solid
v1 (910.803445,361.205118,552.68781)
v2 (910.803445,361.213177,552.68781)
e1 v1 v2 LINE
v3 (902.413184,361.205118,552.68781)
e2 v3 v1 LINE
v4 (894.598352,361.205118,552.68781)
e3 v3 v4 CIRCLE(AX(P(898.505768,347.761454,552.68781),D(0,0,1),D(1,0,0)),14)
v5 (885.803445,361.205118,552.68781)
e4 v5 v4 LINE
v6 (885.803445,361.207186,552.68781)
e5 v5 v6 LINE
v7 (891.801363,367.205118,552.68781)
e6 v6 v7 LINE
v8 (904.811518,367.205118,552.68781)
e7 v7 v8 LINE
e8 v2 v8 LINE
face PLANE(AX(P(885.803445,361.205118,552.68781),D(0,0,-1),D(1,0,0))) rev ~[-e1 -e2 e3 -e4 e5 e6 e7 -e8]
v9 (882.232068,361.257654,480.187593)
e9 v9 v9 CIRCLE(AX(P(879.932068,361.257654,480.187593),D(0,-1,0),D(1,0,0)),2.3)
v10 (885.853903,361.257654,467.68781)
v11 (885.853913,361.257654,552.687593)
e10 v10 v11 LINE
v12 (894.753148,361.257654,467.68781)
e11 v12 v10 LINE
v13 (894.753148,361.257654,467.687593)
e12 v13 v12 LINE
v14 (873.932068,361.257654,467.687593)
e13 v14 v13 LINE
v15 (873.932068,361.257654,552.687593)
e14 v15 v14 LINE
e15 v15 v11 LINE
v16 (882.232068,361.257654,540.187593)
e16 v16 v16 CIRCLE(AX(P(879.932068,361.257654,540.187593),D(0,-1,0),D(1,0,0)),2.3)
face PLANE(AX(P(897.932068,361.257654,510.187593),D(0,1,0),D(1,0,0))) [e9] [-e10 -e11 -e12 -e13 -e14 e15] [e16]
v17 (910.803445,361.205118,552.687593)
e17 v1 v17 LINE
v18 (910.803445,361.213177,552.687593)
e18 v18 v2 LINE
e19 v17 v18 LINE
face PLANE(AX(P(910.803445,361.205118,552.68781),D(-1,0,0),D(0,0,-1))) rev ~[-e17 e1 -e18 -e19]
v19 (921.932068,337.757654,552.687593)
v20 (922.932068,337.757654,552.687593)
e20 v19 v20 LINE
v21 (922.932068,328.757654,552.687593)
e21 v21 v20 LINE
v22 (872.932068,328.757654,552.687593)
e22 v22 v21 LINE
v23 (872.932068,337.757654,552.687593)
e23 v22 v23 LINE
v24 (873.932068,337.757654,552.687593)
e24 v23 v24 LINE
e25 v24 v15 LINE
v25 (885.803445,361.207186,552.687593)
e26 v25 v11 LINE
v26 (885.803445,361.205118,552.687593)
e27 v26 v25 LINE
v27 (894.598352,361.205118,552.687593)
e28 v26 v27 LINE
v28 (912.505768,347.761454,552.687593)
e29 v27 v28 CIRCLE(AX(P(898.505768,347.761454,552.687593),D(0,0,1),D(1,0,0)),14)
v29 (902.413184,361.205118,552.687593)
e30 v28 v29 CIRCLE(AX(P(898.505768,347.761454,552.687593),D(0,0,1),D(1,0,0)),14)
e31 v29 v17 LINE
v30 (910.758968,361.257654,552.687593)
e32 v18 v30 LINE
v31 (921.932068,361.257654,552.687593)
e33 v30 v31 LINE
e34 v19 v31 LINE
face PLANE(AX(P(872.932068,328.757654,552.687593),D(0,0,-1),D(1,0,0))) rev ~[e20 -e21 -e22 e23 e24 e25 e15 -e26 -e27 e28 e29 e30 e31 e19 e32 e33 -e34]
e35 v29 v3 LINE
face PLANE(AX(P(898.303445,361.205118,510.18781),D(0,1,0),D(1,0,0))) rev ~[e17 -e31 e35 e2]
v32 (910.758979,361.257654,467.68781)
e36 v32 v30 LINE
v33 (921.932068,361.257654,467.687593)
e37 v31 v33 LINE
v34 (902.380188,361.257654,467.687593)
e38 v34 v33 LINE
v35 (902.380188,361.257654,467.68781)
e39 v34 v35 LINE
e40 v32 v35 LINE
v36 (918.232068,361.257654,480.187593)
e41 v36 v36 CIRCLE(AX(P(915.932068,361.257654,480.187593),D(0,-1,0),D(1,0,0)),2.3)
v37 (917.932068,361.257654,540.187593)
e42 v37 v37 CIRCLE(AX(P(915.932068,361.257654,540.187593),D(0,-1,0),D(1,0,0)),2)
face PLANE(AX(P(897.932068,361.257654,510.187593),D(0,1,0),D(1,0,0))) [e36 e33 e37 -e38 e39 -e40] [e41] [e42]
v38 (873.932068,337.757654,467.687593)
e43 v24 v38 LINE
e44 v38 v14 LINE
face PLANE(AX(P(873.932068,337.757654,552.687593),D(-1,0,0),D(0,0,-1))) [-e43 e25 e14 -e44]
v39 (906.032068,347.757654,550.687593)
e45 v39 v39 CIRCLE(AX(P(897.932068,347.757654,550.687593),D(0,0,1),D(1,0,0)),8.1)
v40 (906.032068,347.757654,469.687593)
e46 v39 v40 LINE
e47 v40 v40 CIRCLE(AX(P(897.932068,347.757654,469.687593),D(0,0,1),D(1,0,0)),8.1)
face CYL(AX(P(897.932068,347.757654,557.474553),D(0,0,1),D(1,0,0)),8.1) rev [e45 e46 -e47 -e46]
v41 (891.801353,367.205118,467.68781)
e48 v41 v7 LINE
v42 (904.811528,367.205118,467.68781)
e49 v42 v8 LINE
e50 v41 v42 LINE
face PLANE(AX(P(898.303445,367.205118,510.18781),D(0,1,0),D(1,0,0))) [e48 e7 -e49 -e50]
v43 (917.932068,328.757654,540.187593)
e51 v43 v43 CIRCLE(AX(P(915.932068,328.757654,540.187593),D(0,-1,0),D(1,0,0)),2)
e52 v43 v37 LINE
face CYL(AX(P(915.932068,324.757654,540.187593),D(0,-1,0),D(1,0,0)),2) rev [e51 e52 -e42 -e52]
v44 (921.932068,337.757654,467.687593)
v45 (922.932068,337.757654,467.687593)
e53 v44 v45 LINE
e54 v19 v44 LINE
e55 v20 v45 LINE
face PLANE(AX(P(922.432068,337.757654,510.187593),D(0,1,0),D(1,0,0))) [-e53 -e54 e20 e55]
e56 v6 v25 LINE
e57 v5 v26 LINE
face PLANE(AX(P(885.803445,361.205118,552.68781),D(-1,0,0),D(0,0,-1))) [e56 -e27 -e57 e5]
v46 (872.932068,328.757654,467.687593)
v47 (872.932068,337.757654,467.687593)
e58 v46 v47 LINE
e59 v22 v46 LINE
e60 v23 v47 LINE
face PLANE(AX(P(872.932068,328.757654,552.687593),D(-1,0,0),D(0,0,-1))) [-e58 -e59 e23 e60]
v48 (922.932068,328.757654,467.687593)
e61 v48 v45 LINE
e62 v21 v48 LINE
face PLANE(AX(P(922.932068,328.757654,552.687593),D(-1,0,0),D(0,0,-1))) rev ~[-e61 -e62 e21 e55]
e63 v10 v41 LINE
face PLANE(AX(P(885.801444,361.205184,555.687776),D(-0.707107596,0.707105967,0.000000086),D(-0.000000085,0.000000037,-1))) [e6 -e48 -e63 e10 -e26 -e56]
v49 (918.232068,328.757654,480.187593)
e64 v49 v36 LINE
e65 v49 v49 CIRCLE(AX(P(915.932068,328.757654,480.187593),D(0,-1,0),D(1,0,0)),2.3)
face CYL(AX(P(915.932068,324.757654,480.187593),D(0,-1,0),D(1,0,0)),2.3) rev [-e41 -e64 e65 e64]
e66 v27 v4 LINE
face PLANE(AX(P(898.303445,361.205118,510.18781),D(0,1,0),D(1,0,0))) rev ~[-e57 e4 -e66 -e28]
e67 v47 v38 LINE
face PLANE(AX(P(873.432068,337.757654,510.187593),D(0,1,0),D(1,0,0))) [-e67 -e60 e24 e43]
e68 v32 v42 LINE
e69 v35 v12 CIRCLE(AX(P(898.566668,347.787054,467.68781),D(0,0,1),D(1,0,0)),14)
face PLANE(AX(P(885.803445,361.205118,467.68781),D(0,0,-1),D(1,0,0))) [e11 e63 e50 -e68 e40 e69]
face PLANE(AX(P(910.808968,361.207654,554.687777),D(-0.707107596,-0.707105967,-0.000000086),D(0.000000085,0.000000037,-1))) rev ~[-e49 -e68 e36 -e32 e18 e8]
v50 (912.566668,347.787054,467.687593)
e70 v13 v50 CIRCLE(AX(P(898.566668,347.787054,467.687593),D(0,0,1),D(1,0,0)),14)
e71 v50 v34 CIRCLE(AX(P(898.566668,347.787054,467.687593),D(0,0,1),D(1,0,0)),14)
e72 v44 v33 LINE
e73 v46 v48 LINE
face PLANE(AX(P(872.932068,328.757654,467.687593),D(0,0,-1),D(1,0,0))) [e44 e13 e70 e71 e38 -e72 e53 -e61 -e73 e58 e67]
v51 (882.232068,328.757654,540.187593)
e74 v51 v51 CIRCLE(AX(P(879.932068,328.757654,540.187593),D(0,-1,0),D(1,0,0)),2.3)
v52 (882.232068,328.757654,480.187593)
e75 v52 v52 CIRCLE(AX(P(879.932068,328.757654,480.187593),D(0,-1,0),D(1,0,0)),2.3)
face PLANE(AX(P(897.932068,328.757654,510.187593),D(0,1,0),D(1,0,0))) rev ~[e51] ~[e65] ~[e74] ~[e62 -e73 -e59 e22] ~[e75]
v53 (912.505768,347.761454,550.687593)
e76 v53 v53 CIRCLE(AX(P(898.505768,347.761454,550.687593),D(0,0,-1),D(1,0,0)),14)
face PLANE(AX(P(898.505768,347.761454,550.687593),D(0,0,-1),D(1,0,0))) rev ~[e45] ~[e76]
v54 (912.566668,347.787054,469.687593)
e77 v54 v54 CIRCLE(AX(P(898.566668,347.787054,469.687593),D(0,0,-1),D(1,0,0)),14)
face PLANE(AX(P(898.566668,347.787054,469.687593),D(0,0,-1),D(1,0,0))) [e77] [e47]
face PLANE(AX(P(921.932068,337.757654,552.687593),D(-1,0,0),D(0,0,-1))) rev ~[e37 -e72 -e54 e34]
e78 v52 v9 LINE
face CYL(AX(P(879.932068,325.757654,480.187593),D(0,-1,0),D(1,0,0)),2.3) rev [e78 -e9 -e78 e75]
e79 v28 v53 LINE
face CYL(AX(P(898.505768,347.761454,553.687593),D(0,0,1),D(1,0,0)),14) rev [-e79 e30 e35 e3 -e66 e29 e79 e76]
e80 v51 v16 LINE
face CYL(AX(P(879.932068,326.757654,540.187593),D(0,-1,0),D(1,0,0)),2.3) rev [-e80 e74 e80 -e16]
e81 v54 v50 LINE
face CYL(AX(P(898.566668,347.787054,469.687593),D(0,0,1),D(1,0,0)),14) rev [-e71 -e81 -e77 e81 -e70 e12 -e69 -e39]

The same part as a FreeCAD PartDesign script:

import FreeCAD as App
import Part
import Sketcher

V = App.Vector


def add_polygon(sketch, points):
    """Adds a closed chain of lines whose ends are joined by coincident constraints."""
    first, n = sketch.GeometryCount, len(points)
    for a, b in zip(points, points[1:] + points[:1]):
        sketch.addGeometry(Part.LineSegment(App.Vector(*a, 0), App.Vector(*b, 0)), False)
    for i in range(n):
        sketch.addConstraint(Sketcher.Constraint("Coincident", first + i, 2, first + (i + 1) % n, 1))

doc = App.newDocument("Part")
params = doc.addObject("Spreadsheet::Sheet", "Params")
for row, (alias, value) in enumerate([
    ("sketch1_diameter", "28 mm"),
    ("pad1_length", "3 mm"),
    ("sketch2_diameter", "28 mm"),
    ("pad2_length", "3 mm"),
    ("sketch3_diameter", "4.6 mm"),
    ("pad3_length", "40 mm"),
    ("sketch4_diameter", "4 mm"),
    ("pad4_length", "40 mm"),
    ("sketch5_diameter", "4.6 mm"),
    ("pad5_length", "40 mm"),
    ("sketch6_diameter", "4.6 mm"),
    ("pad6_length", "40 mm"),
    ("sketch7_width", "1 mm"),
    ("sketch7_height", "85 mm"),
    ("pad7_length", "23.5 mm"),
    ("sketch8_width", "1 mm"),
    ("sketch8_height", "85 mm"),
    ("pad8_length", "23.5 mm"),
    ("sketch9_width", "10 mm"),
    ("sketch9_height", "90 mm"),
    ("pad9_length", "10 mm"),
    ("sketch10_width", "10 mm"),
    ("sketch10_height", "90 mm"),
    ("pad10_length", "10 mm"),
    ("sketch11_width", "25 mm"),
    ("sketch11_height", "85 mm"),
    ("pad11_length", "6 mm"),
    ("sketch12_diameter", "16.2 mm"),
    ("pad12_length", "100 mm"),
    ("sketch13_width", "50 mm"),
    ("sketch13_height", "85 mm"),
    ("pad13_length", "32.5 mm"),
], start=1):
    params.set(f"A{row}", alias)
    params.set(f"B{row}", "=" + value)
    params.setAlias(f"B{row}", alias)

body = doc.addObject("PartDesign::Body", "Body")

sketch1 = body.newObject("Sketcher::SketchObject", "Sketch")
sketch1.AttachmentSupport = (doc.getObject("XY_Plane"), [""])
sketch1.MapMode = "FlatFace"
sketch1.addGeometry(Part.Circle(V(0, 0, 0), V(0, 0, 1), 14), False)
sketch1.addConstraint([
    Sketcher.Constraint("Coincident", 0, 3, -1, 1),
    Sketcher.Constraint("Diameter", 0, 28.0),
])
sketch1.setExpression("Constraints[1]", "Params.sketch1_diameter")
pad1 = body.newObject("PartDesign::Pad", "Pad")
pad1.Profile = sketch1
pad1.setExpression("Length", "Params.pad1_length")
body2 = doc.addObject("PartDesign::Body", "Body001")
doc.recompute()

body.Placement = App.Placement(V(0, 0, 0), App.Rotation(V(1, 0, 0), 270))
boolean = body2.newObject("PartDesign::Boolean", "Boolean")
boolean.Type = "Fuse"
boolean.addObjects([body])
body3 = doc.addObject("PartDesign::Body", "Body002")
doc.recompute()

body2.Placement = App.Placement(V(25.6346, 83, 19.0294), App.Rotation(V(0, 0, 1), 0))
boolean2 = body3.newObject("PartDesign::Boolean", "Boolean001")
boolean2.Type = "Fuse"
boolean2.addObjects([body2])
body4 = doc.addObject("PartDesign::Body", "Body003")

sketch2 = body4.newObject("Sketcher::SketchObject", "Sketch001")
sketch2.AttachmentSupport = (doc.getObject("XY_Plane003"), [""])
sketch2.MapMode = "FlatFace"
sketch2.addGeometry(Part.Circle(V(0, 0, 0), V(0, 0, 1), 14), False)
sketch2.addConstraint([
    Sketcher.Constraint("Coincident", 0, 3, -1, 1),
    Sketcher.Constraint("Diameter", 0, 28.0),
])
sketch2.setExpression("Constraints[1]", "Params.sketch2_diameter")
pad2 = body4.newObject("PartDesign::Pad", "Pad001")
pad2.Profile = sketch2
pad2.setExpression("Length", "Params.pad2_length")
body5 = doc.addObject("PartDesign::Body", "Body004")
doc.recompute()

body4.Placement = App.Placement(V(0, 0, 0), App.Rotation(V(1, 0, 0), 270))
boolean3 = body5.newObject("PartDesign::Boolean", "Boolean002")
boolean3.Type = "Fuse"
boolean3.addObjects([body4])
body6 = doc.addObject("PartDesign::Body", "Body005")
doc.recompute()

body5.Placement = App.Placement(V(25.5737, -1, 19.0038), App.Rotation(V(0, 0, 1), 0))
boolean4 = body6.newObject("PartDesign::Boolean", "Boolean003")
boolean4.Type = "Fuse"
boolean4.addObjects([body5])
body7 = doc.addObject("PartDesign::Body", "Body006")

sketch3 = body7.newObject("Sketcher::SketchObject", "Sketch002")
sketch3.AttachmentSupport = (doc.getObject("XY_Plane006"), [""])
sketch3.MapMode = "FlatFace"
sketch3.AttachmentOffset = App.Placement(V(0, 0, -4), App.Rotation())
sketch3.addGeometry(Part.Circle(V(43, 72.5, 0), V(0, 0, 1), 2.3), False)
sketch3.addConstraint([
    Sketcher.Constraint("Diameter", 0, 4.6),
    Sketcher.Constraint("DistanceX", -1, 1, 0, 3, 43.0),
    Sketcher.Constraint("DistanceY", -1, 1, 0, 3, 72.5),
])
sketch3.setExpression("Constraints[0]", "Params.sketch3_diameter")
pad3 = body7.newObject("PartDesign::Pad", "Pad002")
pad3.Profile = sketch3
pad3.setExpression("Length", "Params.pad3_length")
body8 = doc.addObject("PartDesign::Body", "Body007")

sketch4 = body8.newObject("Sketcher::SketchObject", "Sketch003")
sketch4.AttachmentSupport = (doc.getObject("XY_Plane007"), [""])
sketch4.MapMode = "FlatFace"
sketch4.AttachmentOffset = App.Placement(V(0, 0, -4), App.Rotation())
sketch4.addGeometry(Part.Circle(V(43, 12.5, 0), V(0, 0, 1), 2), False)
sketch4.addConstraint([
    Sketcher.Constraint("Diameter", 0, 4.0),
    Sketcher.Constraint("DistanceX", -1, 1, 0, 3, 43.0),
    Sketcher.Constraint("DistanceY", -1, 1, 0, 3, 12.5),
])
sketch4.setExpression("Constraints[0]", "Params.sketch4_diameter")
pad4 = body8.newObject("PartDesign::Pad", "Pad003")
pad4.Profile = sketch4
pad4.setExpression("Length", "Params.pad4_length")
body9 = doc.addObject("PartDesign::Body", "Body008")

sketch5 = body9.newObject("Sketcher::SketchObject", "Sketch004")
sketch5.AttachmentSupport = (doc.getObject("XY_Plane008"), [""])
sketch5.MapMode = "FlatFace"
sketch5.AttachmentOffset = App.Placement(V(0, 0, -3), App.Rotation())
sketch5.addGeometry(Part.Circle(V(7, 72.5, 0), V(0, 0, 1), 2.3), False)
sketch5.addConstraint([
    Sketcher.Constraint("Diameter", 0, 4.6),
    Sketcher.Constraint("DistanceX", -1, 1, 0, 3, 7.0),
    Sketcher.Constraint("DistanceY", -1, 1, 0, 3, 72.5),
])
sketch5.setExpression("Constraints[0]", "Params.sketch5_diameter")
pad5 = body9.newObject("PartDesign::Pad", "Pad004")
pad5.Profile = sketch5
pad5.setExpression("Length", "Params.pad5_length")
body10 = doc.addObject("PartDesign::Body", "Body009")

sketch6 = body10.newObject("Sketcher::SketchObject", "Sketch005")
sketch6.AttachmentSupport = (doc.getObject("XY_Plane009"), [""])
sketch6.MapMode = "FlatFace"
sketch6.AttachmentOffset = App.Placement(V(0, 0, -2), App.Rotation())
sketch6.addGeometry(Part.Circle(V(7, 12.5, 0), V(0, 0, 1), 2.3), False)
sketch6.addConstraint([
    Sketcher.Constraint("Diameter", 0, 4.6),
    Sketcher.Constraint("DistanceX", -1, 1, 0, 3, 7.0),
    Sketcher.Constraint("DistanceY", -1, 1, 0, 3, 12.5),
])
sketch6.setExpression("Constraints[0]", "Params.sketch6_diameter")
pad6 = body10.newObject("PartDesign::Pad", "Pad005")
pad6.Profile = sketch6
pad6.setExpression("Length", "Params.pad6_length")
body11 = doc.addObject("PartDesign::Body", "Body010")

sketch7 = body11.newObject("Sketcher::SketchObject", "Sketch006")
sketch7.AttachmentSupport = (doc.getObject("XY_Plane010"), [""])
sketch7.MapMode = "FlatFace"
sketch7.AttachmentOffset = App.Placement(V(0, 0, 9), App.Rotation())
add_polygon(sketch7, [(49, 85), (49, 0), (50, 0), (50, 85)])
sketch7.addConstraint([
    Sketcher.Constraint("Vertical", 0),
    Sketcher.Constraint("Horizontal", 1),
    Sketcher.Constraint("Vertical", 2),
    Sketcher.Constraint("Horizontal", 3),
    Sketcher.Constraint("PointOnObject", 0, 2, -1),
    Sketcher.Constraint("DistanceX", 1, 1, 1, 2, 1.0),
    Sketcher.Constraint("DistanceY", 0, 2, 0, 1, 85.0),
    Sketcher.Constraint("DistanceX", -1, 1, 0, 2, 49.0),
])
sketch7.setExpression("Constraints[9]", "Params.sketch7_width")
sketch7.setExpression("Constraints[10]", "Params.sketch7_height")
pad7 = body11.newObject("PartDesign::Pad", "Pad006")
pad7.Profile = sketch7
pad7.setExpression("Length", "Params.pad7_length")
body12 = doc.addObject("PartDesign::Body", "Body011")

sketch8 = body12.newObject("Sketcher::SketchObject", "Sketch007")
sketch8.AttachmentSupport = (doc.getObject("XY_Plane011"), [""])
sketch8.MapMode = "FlatFace"
sketch8.AttachmentOffset = App.Placement(V(0, 0, 9), App.Rotation())
add_polygon(sketch8, [(0, 85), (0, 0), (1, 0), (1, 85)])
sketch8.addConstraint([
    Sketcher.Constraint("Vertical", 0),
    Sketcher.Constraint("Horizontal", 1),
    Sketcher.Constraint("Vertical", 2),
    Sketcher.Constraint("Horizontal", 3),
    Sketcher.Constraint("Coincident", 0, 2, -1, 1),
    Sketcher.Constraint("DistanceX", 1, 1, 1, 2, 1.0),
    Sketcher.Constraint("DistanceY", 0, 2, 0, 1, 85.0),
])
sketch8.setExpression("Constraints[9]", "Params.sketch8_width")
sketch8.setExpression("Constraints[10]", "Params.sketch8_height")
pad8 = body12.newObject("PartDesign::Pad", "Pad007")
pad8.Profile = sketch8
pad8.setExpression("Length", "Params.pad8_length")
body13 = doc.addObject("PartDesign::Body", "Body012")

sketch9 = body13.newObject("Sketcher::SketchObject", "Sketch008")
sketch9.AttachmentSupport = (doc.getObject("XY_Plane012"), [""])
sketch9.MapMode = "FlatFace"
add_polygon(sketch9, [(0, 90), (0, 0), (10, 0), (10, 90)])
sketch9.addConstraint([
    Sketcher.Constraint("Vertical", 0),
    Sketcher.Constraint("Horizontal", 1),
    Sketcher.Constraint("Vertical", 2),
    Sketcher.Constraint("Horizontal", 3),
    Sketcher.Constraint("Coincident", 0, 2, -1, 1),
    Sketcher.Constraint("DistanceX", 1, 1, 1, 2, 10.0),
    Sketcher.Constraint("DistanceY", 0, 2, 0, 1, 90.0),
])
sketch9.setExpression("Constraints[9]", "Params.sketch9_width")
sketch9.setExpression("Constraints[10]", "Params.sketch9_height")
pad9 = body13.newObject("PartDesign::Pad", "Pad008")
pad9.Profile = sketch9
pad9.setExpression("Length", "Params.pad9_length")
body14 = doc.addObject("PartDesign::Body", "Body013")
doc.recompute()

body13.Placement = App.Placement(V(0, 0, 0), App.Rotation(V(1, 0, 0), 0.000003))
boolean5 = body14.newObject("PartDesign::Boolean", "Boolean004")
boolean5.Type = "Fuse"
boolean5.addObjects([body13])
body15 = doc.addObject("PartDesign::Body", "Body014")
doc.recompute()

body14.Placement = App.Placement(V(0, 0, 0), App.Rotation(V(0, 1, 0), 315.000066))
boolean6 = body15.newObject("PartDesign::Boolean", "Boolean005")
boolean6.Type = "Fuse"
boolean6.addObjects([body14])
body16 = doc.addObject("PartDesign::Body", "Body015")
doc.recompute()

body15.Placement = App.Placement(V(-18.82, -2, 2.25), App.Rotation(V(0, 0, 1), 359.999993))
boolean7 = body16.newObject("PartDesign::Boolean", "Boolean006")
boolean7.Type = "Fuse"
boolean7.addObjects([body15])
body17 = doc.addObject("PartDesign::Body", "Body016")

sketch10 = body17.newObject("Sketcher::SketchObject", "Sketch009")
sketch10.AttachmentSupport = (doc.getObject("XY_Plane016"), [""])
sketch10.MapMode = "FlatFace"
add_polygon(sketch10, [(0, 90), (0, 0), (10, 0), (10, 90)])
sketch10.addConstraint([
    Sketcher.Constraint("Vertical", 0),
    Sketcher.Constraint("Horizontal", 1),
    Sketcher.Constraint("Vertical", 2),
    Sketcher.Constraint("Horizontal", 3),
    Sketcher.Constraint("Coincident", 0, 2, -1, 1),
    Sketcher.Constraint("DistanceX", 1, 1, 1, 2, 10.0),
    Sketcher.Constraint("DistanceY", 0, 2, 0, 1, 90.0),
])
sketch10.setExpression("Constraints[9]", "Params.sketch10_width")
sketch10.setExpression("Constraints[10]", "Params.sketch10_height")
pad10 = body17.newObject("PartDesign::Pad", "Pad009")
pad10.Profile = sketch10
pad10.setExpression("Length", "Params.pad10_length")
body18 = doc.addObject("PartDesign::Body", "Body017")
doc.recompute()

body17.Placement = App.Placement(V(0, 0, 0), App.Rotation(V(1, 0, 0), 0.000003))
boolean8 = body18.newObject("PartDesign::Boolean", "Boolean007")
boolean8.Type = "Fuse"
boolean8.addObjects([body17])
body19 = doc.addObject("PartDesign::Body", "Body018")
doc.recompute()

body18.Placement = App.Placement(V(0, 0, 0), App.Rotation(V(0, 1, 0), 44.999934))
boolean9 = body19.newObject("PartDesign::Boolean", "Boolean008")
boolean9.Type = "Fuse"
boolean9.addObjects([body18])
body20 = doc.addObject("PartDesign::Body", "Body019")
doc.recompute()

body19.Placement = App.Placement(V(-50.8986, -3, 9.31859), App.Rotation(V(0, 0, 1), 0.000007))
boolean10 = body20.newObject("PartDesign::Boolean", "Boolean009")
boolean10.Type = "Fuse"
boolean10.addObjects([body19])
body21 = doc.addObject("PartDesign::Body", "Body020")

sketch11 = body21.newObject("Sketcher::SketchObject", "Sketch010")
sketch11.AttachmentSupport = (doc.getObject("XY_Plane020"), [""])
sketch11.MapMode = "FlatFace"
sketch11.AttachmentOffset = App.Placement(V(0, 0, 2.247464), App.Rotation())
add_polygon(sketch11, [(-44, 85), (-44, 0), (-19, 0), (-19, 85)])
sketch11.addConstraint([
    Sketcher.Constraint("Vertical", 0),
    Sketcher.Constraint("Horizontal", 1),
    Sketcher.Constraint("Vertical", 2),
    Sketcher.Constraint("Horizontal", 3),
    Sketcher.Constraint("DistanceX", 1, 1, 1, 2, 25.0),
    Sketcher.Constraint("DistanceY", 0, 2, 0, 1, 85.0),
    Sketcher.Constraint("DistanceX", 0, 2, -1, 1, 43.825523),
    Sketcher.Constraint("DistanceY", -1, 1, 2, 2, 84.999967),
])
sketch11.setExpression("Constraints[8]", "Params.sketch11_width")
sketch11.setExpression("Constraints[9]", "Params.sketch11_height")
pad11 = body21.newObject("PartDesign::Pad", "Pad010")
pad11.Profile = sketch11
pad11.setExpression("Length", "Params.pad11_length")
doc.recompute()

boolean11 = body21.newObject("PartDesign::Boolean", "Boolean010")
boolean11.Type = "Cut"
boolean11.addObjects([body20])
doc.recompute()

boolean12 = body21.newObject("PartDesign::Boolean", "Boolean011")
boolean12.Type = "Cut"
boolean12.addObjects([body16])
body22 = doc.addObject("PartDesign::Body", "Body021")
doc.recompute()

body21.Placement = App.Placement(V(56.6969, -0.000184, 30.2), App.Rotation(V(0, 0, 1), 0))
boolean13 = body22.newObject("PartDesign::Boolean", "Boolean012")
boolean13.Type = "Fuse"
boolean13.addObjects([body21])
body23 = doc.addObject("PartDesign::Body", "Body022")

sketch12 = body23.newObject("Sketcher::SketchObject", "Sketch011")
sketch12.AttachmentSupport = (doc.getObject("XY_Plane022"), [""])
sketch12.MapMode = "FlatFace"
sketch12.addGeometry(Part.Circle(V(0, 0, 0), V(0, 0, 1), 8), False)
sketch12.addConstraint([
    Sketcher.Constraint("Coincident", 0, 3, -1, 1),
    Sketcher.Constraint("Diameter", 0, 16.2),
])
sketch12.setExpression("Constraints[1]", "Params.sketch12_diameter")
pad12 = body23.newObject("PartDesign::Pad", "Pad011")
pad12.Profile = sketch12
pad12.setExpression("Length", "Params.pad12_length")
body24 = doc.addObject("PartDesign::Body", "Body023")
doc.recompute()

body23.Placement = App.Placement(V(0, 0, 0), App.Rotation(V(1, 0, 0), 270))
boolean14 = body24.newObject("PartDesign::Boolean", "Boolean013")
boolean14.Type = "Fuse"
boolean14.addObjects([body23])
body25 = doc.addObject("PartDesign::Body", "Body024")
doc.recompute()

body24.Placement = App.Placement(V(25, -4.78696, 19), App.Rotation(V(0, 0, 1), 0))
boolean15 = body25.newObject("PartDesign::Boolean", "Boolean014")
boolean15.Type = "Fuse"
boolean15.addObjects([body24])
body26 = doc.addObject("PartDesign::Body", "Body025")

sketch13 = body26.newObject("Sketcher::SketchObject", "Sketch012")
sketch13.AttachmentSupport = (doc.getObject("XY_Plane025"), [""])
sketch13.MapMode = "FlatFace"
add_polygon(sketch13, [(0, 85), (0, 0), (50, 0), (50, 85)])
sketch13.addConstraint([
    Sketcher.Constraint("Vertical", 0),
    Sketcher.Constraint("Horizontal", 1),
    Sketcher.Constraint("Vertical", 2),
    Sketcher.Constraint("Horizontal", 3),
    Sketcher.Constraint("Coincident", 0, 2, -1, 1),
    Sketcher.Constraint("DistanceX", 1, 1, 1, 2, 50.0),
    Sketcher.Constraint("DistanceY", 0, 2, 0, 1, 85.0),
])
sketch13.setExpression("Constraints[9]", "Params.sketch13_width")
sketch13.setExpression("Constraints[10]", "Params.sketch13_height")
pad13 = body26.newObject("PartDesign::Pad", "Pad012")
pad13.Profile = sketch13
pad13.setExpression("Length", "Params.pad13_length")
doc.recompute()

boolean16 = body26.newObject("PartDesign::Boolean", "Boolean015")
boolean16.Type = "Cut"
boolean16.addObjects([body25])
doc.recompute()

boolean17 = body26.newObject("PartDesign::Boolean", "Boolean016")
boolean17.Type = "Fuse"
boolean17.addObjects([body22])
doc.recompute()

boolean18 = body26.newObject("PartDesign::Boolean", "Boolean017")
boolean18.Type = "Cut"
boolean18.addObjects([body12])
doc.recompute()

boolean19 = body26.newObject("PartDesign::Boolean", "Boolean018")
boolean19.Type = "Cut"
boolean19.addObjects([body11])
doc.recompute()

boolean20 = body26.newObject("PartDesign::Boolean", "Boolean019")
boolean20.Type = "Cut"
boolean20.addObjects([body10])
doc.recompute()

boolean21 = body26.newObject("PartDesign::Boolean", "Boolean020")
boolean21.Type = "Cut"
boolean21.addObjects([body9])
doc.recompute()

boolean22 = body26.newObject("PartDesign::Boolean", "Boolean021")
boolean22.Type = "Cut"
boolean22.addObjects([body8])
doc.recompute()

boolean23 = body26.newObject("PartDesign::Boolean", "Boolean022")
boolean23.Type = "Cut"
boolean23.addObjects([body7])
doc.recompute()

body27 = doc.addObject("PartDesign::Body", "Body026")
body27.BaseFeature = body6
boolean24 = body26.newObject("PartDesign::Boolean", "Boolean023")
boolean24.Type = "Cut"
boolean24.addObjects([body27])
doc.recompute()

boolean25 = body26.newObject("PartDesign::Boolean", "Boolean024")
boolean25.Type = "Cut"
boolean25.addObjects([body6])
doc.recompute()

boolean26 = body26.newObject("PartDesign::Boolean", "Boolean025")
boolean26.Type = "Cut"
boolean26.addObjects([body3])
body28 = doc.addObject("PartDesign::Body", "Body027")
doc.recompute()

body26.Placement = App.Placement(V(0, 0, 0), App.Rotation(V(1, 0, 0), 270))
boolean27 = body28.newObject("PartDesign::Boolean", "Boolean026")
boolean27.Type = "Fuse"
boolean27.addObjects([body26])
body29 = doc.addObject("PartDesign::Body", "Body028")
doc.recompute()

body28.Placement = App.Placement(V(872.932068, 328.757654, 552.687593), App.Rotation(V(0, 0, 1), 0))
boolean28 = body29.newObject("PartDesign::Boolean", "Boolean027")
boolean28.Type = "Fuse"
boolean28.addObjects([body28])

doc.recompute()
